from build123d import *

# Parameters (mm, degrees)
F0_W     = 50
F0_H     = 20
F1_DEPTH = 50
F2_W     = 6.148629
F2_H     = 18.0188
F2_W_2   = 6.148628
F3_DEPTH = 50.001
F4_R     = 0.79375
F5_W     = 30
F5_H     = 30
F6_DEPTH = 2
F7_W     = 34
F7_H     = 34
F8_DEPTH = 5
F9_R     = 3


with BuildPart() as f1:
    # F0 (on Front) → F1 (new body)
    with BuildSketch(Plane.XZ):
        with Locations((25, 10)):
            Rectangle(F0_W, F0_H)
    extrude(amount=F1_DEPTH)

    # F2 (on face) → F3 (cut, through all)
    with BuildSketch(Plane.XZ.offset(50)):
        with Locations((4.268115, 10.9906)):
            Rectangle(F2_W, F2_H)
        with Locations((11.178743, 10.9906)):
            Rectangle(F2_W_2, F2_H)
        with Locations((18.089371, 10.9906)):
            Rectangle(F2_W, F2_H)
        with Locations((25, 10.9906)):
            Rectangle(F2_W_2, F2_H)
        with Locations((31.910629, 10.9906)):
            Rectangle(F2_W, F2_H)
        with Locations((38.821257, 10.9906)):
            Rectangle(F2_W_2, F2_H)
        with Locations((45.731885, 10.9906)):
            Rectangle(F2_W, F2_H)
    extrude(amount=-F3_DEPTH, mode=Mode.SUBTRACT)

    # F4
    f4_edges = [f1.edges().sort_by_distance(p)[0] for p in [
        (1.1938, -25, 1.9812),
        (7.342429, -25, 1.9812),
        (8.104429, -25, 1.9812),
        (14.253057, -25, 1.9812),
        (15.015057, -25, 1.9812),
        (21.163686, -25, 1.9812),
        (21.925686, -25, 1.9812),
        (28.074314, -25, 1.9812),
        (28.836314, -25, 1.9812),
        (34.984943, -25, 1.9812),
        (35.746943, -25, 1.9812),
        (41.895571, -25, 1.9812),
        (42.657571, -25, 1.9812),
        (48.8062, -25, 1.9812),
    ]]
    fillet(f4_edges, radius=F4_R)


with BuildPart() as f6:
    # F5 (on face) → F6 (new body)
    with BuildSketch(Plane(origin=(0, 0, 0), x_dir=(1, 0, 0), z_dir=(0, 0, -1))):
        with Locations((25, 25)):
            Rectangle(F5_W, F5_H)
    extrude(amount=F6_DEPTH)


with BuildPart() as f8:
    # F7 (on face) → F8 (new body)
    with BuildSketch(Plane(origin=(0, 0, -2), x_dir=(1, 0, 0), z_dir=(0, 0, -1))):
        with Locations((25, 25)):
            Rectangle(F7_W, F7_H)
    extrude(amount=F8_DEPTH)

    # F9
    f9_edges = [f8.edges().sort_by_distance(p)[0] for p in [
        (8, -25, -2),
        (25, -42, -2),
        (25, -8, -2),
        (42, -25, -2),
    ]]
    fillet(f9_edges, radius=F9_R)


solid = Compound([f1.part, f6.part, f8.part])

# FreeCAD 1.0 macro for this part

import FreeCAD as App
import Part
import Sketcher
from FreeCAD import Vector


def edges_at(feature, points):
    """Names of the edges that pass closest to the given points."""
    edges = feature.Shape.Edges
    near = lambda p: min(range(len(edges)), key=lambda i: edges[i].distToShape(Part.Vertex(*p))[0])
    return sorted({f"Edge{near(p) + 1}" for p in points})


def add_polygon(sketch, points):
    """Adds a closed chain of lines whose ends are joined by coincident constraints."""
    first, n = sketch.GeometryCount, len(points)
    for a, b in zip(points, points[1:] + points[:1]):
        sketch.addGeometry(Part.LineSegment(App.Vector(*a, 0), App.Vector(*b, 0)), False)
    for i in range(n):
        sketch.addConstraint(Sketcher.Constraint("Coincident", first + i, 2, first + (i + 1) % n, 1))

doc = App.newDocument("Part")
params = doc.addObject("Spreadsheet::Sheet", "Params")
for row, (alias, value) in enumerate([
    ("sketch1_width", "50 mm"),
    ("sketch1_height", "20 mm"),
    ("pad1_length", "50 mm"),
    ("fillet_radius", "0.79375 mm"),
    ("sketch3_width", "30 mm"),
    ("pad2_length", "2 mm"),
    ("sketch4_width", "34 mm"),
    ("pad3_length", "5 mm"),
    ("fillet2_radius", "3 mm"),
], start=1):
    params.set(f"A{row}", alias)
    params.set(f"B{row}", "=" + value)
    params.setAlias(f"B{row}", alias)

body = doc.addObject("PartDesign::Body", "Body")

sketch1 = body.newObject("Sketcher::SketchObject", "Sketch")
sketch1.AttachmentSupport = (doc.getObject("XZ_Plane"), [""])
sketch1.MapMode = "FlatFace"
add_polygon(sketch1, [(0, 20), (0, 0), (50, 0), (50, 20)])
sketch1.addConstraint(Sketcher.Constraint("Vertical", 0))
sketch1.addConstraint(Sketcher.Constraint("Horizontal", 1))
sketch1.addConstraint(Sketcher.Constraint("Vertical", 2))
sketch1.addConstraint(Sketcher.Constraint("Horizontal", 3))
sketch1.addConstraint(Sketcher.Constraint("Coincident", 0, 2, -1, 1))
sketch1.addConstraint(Sketcher.Constraint("DistanceX", 1, 1, 1, 2, 50.0))
sketch1.addConstraint(Sketcher.Constraint("DistanceY", 0, 2, 0, 1, 20.0))
sketch1.setExpression("Constraints[9]", "Params.sketch1_width")
sketch1.setExpression("Constraints[10]", "Params.sketch1_height")
pad1 = body.newObject("PartDesign::Pad", "Pad")
pad1.Profile = sketch1
pad1.setExpression("Length", "Params.pad1_length")

sketch2 = body.newObject("Sketcher::SketchObject", "Sketch001")
sketch2.AttachmentSupport = (doc.getObject("XZ_Plane"), [""])
sketch2.MapMode = "FlatFace"
sketch2.AttachmentOffset = App.Placement(Vector(0, 0, 50), App.Rotation())
add_polygon(sketch2, [(1.193801, 20), (1.193801, 1.9812), (7.342429, 1.9812), (7.342429, 20)])
add_polygon(sketch2, [(8.104429, 20), (8.104429, 1.9812), (14.253057, 1.9812), (14.253057, 20)])
add_polygon(sketch2, [(15.015057, 20), (15.015057, 1.9812), (21.163685, 1.9812), (21.163685, 20)])
add_polygon(sketch2, [(21.925686, 20), (21.925686, 1.9812), (28.074314, 1.9812), (28.074314, 20)])
add_polygon(sketch2, [(28.836315, 20), (28.836315, 1.9812), (34.984943, 1.9812), (34.984943, 20)])
add_polygon(sketch2, [(35.746943, 20), (35.746943, 1.9812), (41.895571, 1.9812), (41.895571, 20)])
add_polygon(sketch2, [(42.65757, 20), (42.65757, 1.9812), (48.806199, 1.9812), (48.806199, 20)])
sketch2.addConstraint(Sketcher.Constraint("Vertical", 0))
sketch2.addConstraint(Sketcher.Constraint("Horizontal", 1))
sketch2.addConstraint(Sketcher.Constraint("Vertical", 2))
sketch2.addConstraint(Sketcher.Constraint("Horizontal", 3))
sketch2.addConstraint(Sketcher.Constraint("Vertical", 4))
sketch2.addConstraint(Sketcher.Constraint("Horizontal", 5))
sketch2.addConstraint(Sketcher.Constraint("Vertical", 6))
sketch2.addConstraint(Sketcher.Constraint("Horizontal", 7))
sketch2.addConstraint(Sketcher.Constraint("Vertical", 8))
sketch2.addConstraint(Sketcher.Constraint("Horizontal", 9))
sketch2.addConstraint(Sketcher.Constraint("Vertical", 10))
sketch2.addConstraint(Sketcher.Constraint("Horizontal", 11))
sketch2.addConstraint(Sketcher.Constraint("Vertical", 12))
sketch2.addConstraint(Sketcher.Constraint("Horizontal", 13))
sketch2.addConstraint(Sketcher.Constraint("Vertical", 14))
sketch2.addConstraint(Sketcher.Constraint("Horizontal", 15))
sketch2.addConstraint(Sketcher.Constraint("Vertical", 16))
sketch2.addConstraint(Sketcher.Constraint("Horizontal", 17))
sketch2.addConstraint(Sketcher.Constraint("Vertical", 18))
sketch2.addConstraint(Sketcher.Constraint("Horizontal", 19))
sketch2.addConstraint(Sketcher.Constraint("Vertical", 20))
sketch2.addConstraint(Sketcher.Constraint("Horizontal", 21))
sketch2.addConstraint(Sketcher.Constraint("Vertical", 22))
sketch2.addConstraint(Sketcher.Constraint("Horizontal", 23))
sketch2.addConstraint(Sketcher.Constraint("Vertical", 24))
sketch2.addConstraint(Sketcher.Constraint("Horizontal", 25))
sketch2.addConstraint(Sketcher.Constraint("Vertical", 26))
sketch2.addConstraint(Sketcher.Constraint("Horizontal", 27))
sketch2.addConstraint(Sketcher.Constraint("Horizontal", 1, 2, 4, 2))
sketch2.addConstraint(Sketcher.Constraint("Horizontal", 3, 2, 6, 2))
sketch2.addConstraint(Sketcher.Constraint("Horizontal", 5, 2, 8, 2))
sketch2.addConstraint(Sketcher.Constraint("Horizontal", 7, 2, 10, 2))
sketch2.addConstraint(Sketcher.Constraint("Horizontal", 9, 2, 12, 2))
sketch2.addConstraint(Sketcher.Constraint("Horizontal", 11, 2, 14, 2))
sketch2.addConstraint(Sketcher.Constraint("Horizontal", 13, 2, 16, 2))
sketch2.addConstraint(Sketcher.Constraint("Horizontal", 15, 2, 18, 2))
sketch2.addConstraint(Sketcher.Constraint("Horizontal", 17, 2, 20, 2))
sketch2.addConstraint(Sketcher.Constraint("Horizontal", 19, 2, 22, 2))
sketch2.addConstraint(Sketcher.Constraint("Horizontal", 21, 2, 24, 2))
sketch2.addConstraint(Sketcher.Constraint("Horizontal", 23, 2, 26, 2))
sketch2.addConstraint(Sketcher.Constraint("Equal", 3, 5))
sketch2.addConstraint(Sketcher.Constraint("Equal", 7, 9))
sketch2.addConstraint(Sketcher.Constraint("Equal", 11, 13))
sketch2.addConstraint(Sketcher.Constraint("Equal", 15, 17))
sketch2.addConstraint(Sketcher.Constraint("Equal", 19, 21))
sketch2.addConstraint(Sketcher.Constraint("Equal", 23, 25))
sketch2.addConstraint(Sketcher.Constraint("DistanceY", -1, 1, 2, 2, 20.0))
sketch2.addConstraint(Sketcher.Constraint("DistanceY", 0, 2, 0, 1, 18.0188))
sketch2.addConstraint(Sketcher.Constraint("DistanceX", 1, 2, 4, 2, 0.761999))
sketch2.addConstraint(Sketcher.Constraint("DistanceX", 5, 2, 8, 2, 0.761999))
sketch2.addConstraint(Sketcher.Constraint("DistanceX", 9, 2, 12, 2, 0.762))
sketch2.addConstraint(Sketcher.Constraint("DistanceX", 13, 2, 16, 2, 0.762))
sketch2.addConstraint(Sketcher.Constraint("DistanceX", 17, 2, 20, 2, 0.762))
sketch2.addConstraint(Sketcher.Constraint("DistanceX", 21, 2, 24, 2, 0.762))
sketch2.addConstraint(Sketcher.Constraint("DistanceX", 1, 1, 1, 2, 6.148629))
sketch2.addConstraint(Sketcher.Constraint("DistanceX", -1, 1, 0, 2, 1.193801))
pocket1 = body.newObject("PartDesign::Pocket", "Pocket")
pocket1.Profile = sketch2
pocket1.Type = "ThroughAll"
doc.recompute()

fillet = body.newObject("PartDesign::Fillet", "Fillet")
fillet.Base = (pocket1, edges_at(pocket1, [
    (1.194, -25, 1.981),
    (7.342, -25, 1.981),
    (8.104, -25, 1.981),
    (14.253, -25, 1.981),
    (15.015, -25, 1.981),
    (21.164, -25, 1.981),
    (21.926, -25, 1.981),
    (28.074, -25, 1.981),
    (28.836, -25, 1.981),
    (34.985, -25, 1.981),
    (35.747, -25, 1.981),
    (41.896, -25, 1.981),
    (42.658, -25, 1.981),
    (48.806, -25, 1.981),
]))
fillet.setExpression("Radius", "Params.fillet_radius")
body2 = doc.addObject("PartDesign::Body", "Body001")

sketch3 = body2.newObject("Sketcher::SketchObject", "Sketch002")
sketch3.AttachmentSupport = (doc.getObject("XY_Plane001"), [""])
sketch3.MapMode = "FlatFace"
add_polygon(sketch3, [(10, -40), (10, -10), (40, -10), (40, -40)])
sketch3.addConstraint(Sketcher.Constraint("Vertical", 0))
sketch3.addConstraint(Sketcher.Constraint("Horizontal", 1))
sketch3.addConstraint(Sketcher.Constraint("Vertical", 2))
sketch3.addConstraint(Sketcher.Constraint("Horizontal", 3))
sketch3.addConstraint(Sketcher.Constraint("Equal", 3, 0))
sketch3.addConstraint(Sketcher.Constraint("DistanceX", 1, 1, 1, 2, 30.0))
sketch3.addConstraint(Sketcher.Constraint("DistanceX", -1, 1, 0, 2, 10.0))
sketch3.addConstraint(Sketcher.Constraint("DistanceY", 0, 2, -1, 1, 10.0))
sketch3.setExpression("Constraints[9]", "Params.sketch3_width")
pad2 = body2.newObject("PartDesign::Pad", "Pad001")
pad2.Profile = sketch3
pad2.setExpression("Length", "Params.pad2_length")
pad2.Reversed = True
body3 = doc.addObject("PartDesign::Body", "Body002")

sketch4 = body3.newObject("Sketcher::SketchObject", "Sketch003")
sketch4.AttachmentSupport = (doc.getObject("XY_Plane002"), [""])
sketch4.MapMode = "FlatFace"
sketch4.AttachmentOffset = App.Placement(Vector(0, 0, -2), App.Rotation())
add_polygon(sketch4, [(8, -42), (8, -8), (42, -8), (42, -42)])
sketch4.addConstraint(Sketcher.Constraint("Vertical", 0))
sketch4.addConstraint(Sketcher.Constraint("Horizontal", 1))
sketch4.addConstraint(Sketcher.Constraint("Vertical", 2))
sketch4.addConstraint(Sketcher.Constraint("Horizontal", 3))
sketch4.addConstraint(Sketcher.Constraint("Equal", 3, 0))
sketch4.addConstraint(Sketcher.Constraint("DistanceX", 1, 1, 1, 2, 34.0))
sketch4.addConstraint(Sketcher.Constraint("DistanceX", -1, 1, 0, 2, 8.0))
sketch4.addConstraint(Sketcher.Constraint("DistanceY", 0, 2, -1, 1, 8.0))
sketch4.setExpression("Constraints[9]", "Params.sketch4_width")
pad3 = body3.newObject("PartDesign::Pad", "Pad002")
pad3.Profile = sketch4
pad3.setExpression("Length", "Params.pad3_length")
pad3.Reversed = True
doc.recompute()

fillet2 = body3.newObject("PartDesign::Fillet", "Fillet001")
fillet2.Base = (pad3, edges_at(pad3, [
    (8, -25, -2),
    (25, -42, -2),
    (25, -8, -2),
    (42, -25, -2),
]))
fillet2.setExpression("Radius", "Params.fillet2_radius")

doc.recompute()
